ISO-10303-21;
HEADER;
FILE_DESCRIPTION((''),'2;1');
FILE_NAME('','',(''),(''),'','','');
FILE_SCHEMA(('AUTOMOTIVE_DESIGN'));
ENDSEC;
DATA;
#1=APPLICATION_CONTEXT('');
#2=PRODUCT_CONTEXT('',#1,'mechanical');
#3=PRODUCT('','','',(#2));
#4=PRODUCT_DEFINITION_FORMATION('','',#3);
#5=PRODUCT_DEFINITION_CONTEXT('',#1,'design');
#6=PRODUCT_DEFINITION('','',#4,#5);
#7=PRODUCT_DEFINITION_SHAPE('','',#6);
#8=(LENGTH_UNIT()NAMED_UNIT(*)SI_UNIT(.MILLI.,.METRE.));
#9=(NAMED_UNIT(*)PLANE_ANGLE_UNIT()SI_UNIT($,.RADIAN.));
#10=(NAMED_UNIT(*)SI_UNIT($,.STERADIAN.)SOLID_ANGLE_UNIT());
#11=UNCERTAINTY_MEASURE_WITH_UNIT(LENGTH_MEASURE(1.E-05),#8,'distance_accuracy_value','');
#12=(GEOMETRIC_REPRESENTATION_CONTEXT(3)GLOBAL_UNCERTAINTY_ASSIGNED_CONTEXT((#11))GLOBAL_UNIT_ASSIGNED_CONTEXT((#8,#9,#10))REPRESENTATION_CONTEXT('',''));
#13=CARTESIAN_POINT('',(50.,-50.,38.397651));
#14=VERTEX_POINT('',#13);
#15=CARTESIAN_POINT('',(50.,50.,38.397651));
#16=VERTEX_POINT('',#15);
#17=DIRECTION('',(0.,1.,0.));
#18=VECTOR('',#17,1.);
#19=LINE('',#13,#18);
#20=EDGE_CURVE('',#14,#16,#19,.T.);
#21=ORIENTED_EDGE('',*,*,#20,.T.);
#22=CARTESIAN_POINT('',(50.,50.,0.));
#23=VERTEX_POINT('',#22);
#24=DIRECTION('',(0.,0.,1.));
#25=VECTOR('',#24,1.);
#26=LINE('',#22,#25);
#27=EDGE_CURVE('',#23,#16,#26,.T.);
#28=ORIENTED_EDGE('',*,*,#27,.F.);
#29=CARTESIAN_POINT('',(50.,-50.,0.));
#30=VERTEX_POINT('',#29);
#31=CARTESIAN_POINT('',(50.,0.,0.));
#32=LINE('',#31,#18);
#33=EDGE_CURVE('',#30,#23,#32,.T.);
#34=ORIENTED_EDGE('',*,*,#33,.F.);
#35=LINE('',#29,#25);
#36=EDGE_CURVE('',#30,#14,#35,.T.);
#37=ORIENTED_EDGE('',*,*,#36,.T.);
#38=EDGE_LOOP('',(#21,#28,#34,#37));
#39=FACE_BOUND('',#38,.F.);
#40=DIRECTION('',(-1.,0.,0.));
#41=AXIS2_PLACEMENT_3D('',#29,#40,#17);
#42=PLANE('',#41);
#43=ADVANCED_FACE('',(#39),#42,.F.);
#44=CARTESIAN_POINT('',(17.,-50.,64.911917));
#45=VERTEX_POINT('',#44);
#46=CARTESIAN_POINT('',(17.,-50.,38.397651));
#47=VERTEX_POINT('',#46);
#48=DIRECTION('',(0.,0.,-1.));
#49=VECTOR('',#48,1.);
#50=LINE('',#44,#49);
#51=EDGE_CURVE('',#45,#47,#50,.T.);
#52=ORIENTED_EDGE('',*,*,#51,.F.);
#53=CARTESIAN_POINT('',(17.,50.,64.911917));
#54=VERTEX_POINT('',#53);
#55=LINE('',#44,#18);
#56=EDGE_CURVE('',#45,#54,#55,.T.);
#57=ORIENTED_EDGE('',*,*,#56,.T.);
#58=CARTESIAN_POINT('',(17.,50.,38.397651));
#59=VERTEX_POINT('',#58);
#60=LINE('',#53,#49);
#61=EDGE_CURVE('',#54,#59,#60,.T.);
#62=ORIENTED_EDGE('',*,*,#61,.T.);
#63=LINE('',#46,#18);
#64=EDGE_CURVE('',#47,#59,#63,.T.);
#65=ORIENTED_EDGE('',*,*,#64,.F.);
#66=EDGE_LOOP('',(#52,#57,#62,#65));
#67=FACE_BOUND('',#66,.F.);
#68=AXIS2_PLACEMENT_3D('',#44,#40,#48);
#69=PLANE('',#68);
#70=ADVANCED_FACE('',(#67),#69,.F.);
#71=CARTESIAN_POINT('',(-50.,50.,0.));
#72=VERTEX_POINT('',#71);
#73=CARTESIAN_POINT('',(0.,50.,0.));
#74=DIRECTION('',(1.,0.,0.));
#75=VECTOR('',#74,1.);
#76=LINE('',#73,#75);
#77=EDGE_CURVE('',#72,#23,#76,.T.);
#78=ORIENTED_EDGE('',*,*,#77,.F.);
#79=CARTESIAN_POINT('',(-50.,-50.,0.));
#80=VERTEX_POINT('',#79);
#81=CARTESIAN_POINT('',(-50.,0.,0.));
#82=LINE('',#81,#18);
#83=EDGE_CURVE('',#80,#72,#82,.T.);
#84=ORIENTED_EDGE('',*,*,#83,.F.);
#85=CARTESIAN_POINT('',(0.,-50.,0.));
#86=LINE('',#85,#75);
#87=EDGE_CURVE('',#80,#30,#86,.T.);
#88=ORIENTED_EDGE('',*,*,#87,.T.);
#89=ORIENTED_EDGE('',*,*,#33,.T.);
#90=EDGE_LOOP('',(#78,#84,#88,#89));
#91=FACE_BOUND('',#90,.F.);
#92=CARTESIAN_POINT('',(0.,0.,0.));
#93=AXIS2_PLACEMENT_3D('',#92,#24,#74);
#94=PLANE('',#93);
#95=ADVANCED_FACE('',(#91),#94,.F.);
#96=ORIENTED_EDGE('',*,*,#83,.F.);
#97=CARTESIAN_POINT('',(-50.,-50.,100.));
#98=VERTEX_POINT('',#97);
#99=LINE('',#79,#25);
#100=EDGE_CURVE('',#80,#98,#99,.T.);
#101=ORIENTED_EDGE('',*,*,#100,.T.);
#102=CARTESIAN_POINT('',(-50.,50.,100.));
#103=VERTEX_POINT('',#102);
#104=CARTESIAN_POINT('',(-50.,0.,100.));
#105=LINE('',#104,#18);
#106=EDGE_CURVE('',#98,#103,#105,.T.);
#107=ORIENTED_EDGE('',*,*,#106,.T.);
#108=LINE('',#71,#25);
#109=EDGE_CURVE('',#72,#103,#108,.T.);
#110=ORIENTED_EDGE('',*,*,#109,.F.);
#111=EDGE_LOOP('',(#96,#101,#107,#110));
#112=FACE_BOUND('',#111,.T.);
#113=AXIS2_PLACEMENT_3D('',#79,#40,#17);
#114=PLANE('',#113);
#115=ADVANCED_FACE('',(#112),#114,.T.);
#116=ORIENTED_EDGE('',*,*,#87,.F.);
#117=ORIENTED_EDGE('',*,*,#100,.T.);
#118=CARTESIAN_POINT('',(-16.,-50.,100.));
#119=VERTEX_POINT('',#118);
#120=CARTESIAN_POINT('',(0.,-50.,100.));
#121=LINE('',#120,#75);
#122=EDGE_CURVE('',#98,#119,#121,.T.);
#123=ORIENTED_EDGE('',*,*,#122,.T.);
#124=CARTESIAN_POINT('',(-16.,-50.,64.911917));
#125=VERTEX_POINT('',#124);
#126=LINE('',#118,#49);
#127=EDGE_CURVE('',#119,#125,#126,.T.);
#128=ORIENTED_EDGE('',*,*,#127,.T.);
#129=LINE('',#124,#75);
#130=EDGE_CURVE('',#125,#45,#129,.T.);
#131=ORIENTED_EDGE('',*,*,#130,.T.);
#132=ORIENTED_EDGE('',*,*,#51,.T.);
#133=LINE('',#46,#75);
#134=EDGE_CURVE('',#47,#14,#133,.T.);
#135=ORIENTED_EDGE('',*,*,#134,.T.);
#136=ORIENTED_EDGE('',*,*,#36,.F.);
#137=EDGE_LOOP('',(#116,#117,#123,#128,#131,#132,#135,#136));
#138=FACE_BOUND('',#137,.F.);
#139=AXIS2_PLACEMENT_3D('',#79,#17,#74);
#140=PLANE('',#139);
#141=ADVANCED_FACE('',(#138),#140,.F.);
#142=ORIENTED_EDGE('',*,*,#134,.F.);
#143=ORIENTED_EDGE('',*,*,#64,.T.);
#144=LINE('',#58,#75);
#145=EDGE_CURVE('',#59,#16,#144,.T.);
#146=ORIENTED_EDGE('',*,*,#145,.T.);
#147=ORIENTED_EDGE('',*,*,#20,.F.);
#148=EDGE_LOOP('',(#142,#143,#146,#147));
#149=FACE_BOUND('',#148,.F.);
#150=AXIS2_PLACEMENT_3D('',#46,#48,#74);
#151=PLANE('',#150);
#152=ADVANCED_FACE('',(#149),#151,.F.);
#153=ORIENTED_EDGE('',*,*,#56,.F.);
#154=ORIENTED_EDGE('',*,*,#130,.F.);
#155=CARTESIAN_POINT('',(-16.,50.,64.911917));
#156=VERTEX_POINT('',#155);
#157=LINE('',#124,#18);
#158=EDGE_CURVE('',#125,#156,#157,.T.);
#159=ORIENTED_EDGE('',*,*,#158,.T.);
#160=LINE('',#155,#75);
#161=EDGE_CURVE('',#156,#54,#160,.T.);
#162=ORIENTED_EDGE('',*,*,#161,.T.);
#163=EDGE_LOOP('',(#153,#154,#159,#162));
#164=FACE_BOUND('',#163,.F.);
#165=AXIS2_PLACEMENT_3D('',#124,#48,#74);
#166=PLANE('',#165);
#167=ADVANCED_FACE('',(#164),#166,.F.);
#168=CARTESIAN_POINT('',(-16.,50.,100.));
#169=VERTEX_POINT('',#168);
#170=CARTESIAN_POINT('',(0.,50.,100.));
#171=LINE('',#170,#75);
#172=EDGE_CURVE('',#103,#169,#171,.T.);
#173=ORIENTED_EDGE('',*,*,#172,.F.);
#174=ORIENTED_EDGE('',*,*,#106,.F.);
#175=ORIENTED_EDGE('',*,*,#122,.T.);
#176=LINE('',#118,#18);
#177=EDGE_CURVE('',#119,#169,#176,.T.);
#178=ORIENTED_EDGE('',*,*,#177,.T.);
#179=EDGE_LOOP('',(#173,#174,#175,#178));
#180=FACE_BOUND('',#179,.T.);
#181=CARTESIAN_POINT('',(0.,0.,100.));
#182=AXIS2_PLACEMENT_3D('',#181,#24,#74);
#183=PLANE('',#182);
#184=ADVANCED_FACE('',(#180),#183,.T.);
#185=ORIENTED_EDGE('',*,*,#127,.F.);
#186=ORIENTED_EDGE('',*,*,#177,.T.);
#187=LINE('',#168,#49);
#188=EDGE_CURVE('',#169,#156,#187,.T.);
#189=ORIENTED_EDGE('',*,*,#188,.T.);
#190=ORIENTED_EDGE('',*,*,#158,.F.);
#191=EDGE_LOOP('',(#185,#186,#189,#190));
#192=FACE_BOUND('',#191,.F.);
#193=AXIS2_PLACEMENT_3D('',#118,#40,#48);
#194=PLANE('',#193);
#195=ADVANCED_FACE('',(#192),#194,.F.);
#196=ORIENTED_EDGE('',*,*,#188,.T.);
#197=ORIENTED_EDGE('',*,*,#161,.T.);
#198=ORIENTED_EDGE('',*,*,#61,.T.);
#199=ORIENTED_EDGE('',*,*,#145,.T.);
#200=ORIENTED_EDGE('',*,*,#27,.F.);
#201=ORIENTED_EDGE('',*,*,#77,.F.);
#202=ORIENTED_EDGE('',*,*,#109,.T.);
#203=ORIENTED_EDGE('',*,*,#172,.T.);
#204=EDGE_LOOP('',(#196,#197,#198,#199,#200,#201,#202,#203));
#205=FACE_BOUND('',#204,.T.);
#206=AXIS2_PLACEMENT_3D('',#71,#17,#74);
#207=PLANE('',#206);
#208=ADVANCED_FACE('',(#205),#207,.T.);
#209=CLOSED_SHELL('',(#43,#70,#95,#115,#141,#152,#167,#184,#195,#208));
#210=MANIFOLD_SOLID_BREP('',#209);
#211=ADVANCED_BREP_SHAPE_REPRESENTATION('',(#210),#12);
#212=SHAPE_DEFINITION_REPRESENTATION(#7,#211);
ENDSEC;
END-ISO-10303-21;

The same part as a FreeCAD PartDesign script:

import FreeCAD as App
import Part
import Sketcher

doc = App.newDocument("Part")
body = doc.addObject("PartDesign::Body", "Body")

sketch1 = body.newObject("Sketcher::SketchObject", "Sketch")
sketch1.AttachmentSupport = (doc.getObject("XY_Plane"), [""])
sketch1.MapMode = "FlatFace"
sketch1.addGeometry(Part.LineSegment(App.Vector(-50, 50, 0), App.Vector(-50, -50, 0)), False)
sketch1.addGeometry(Part.LineSegment(App.Vector(-50, -50, 0), App.Vector(50, -50, 0)), False)
sketch1.addGeometry(Part.LineSegment(App.Vector(50, -50, 0), App.Vector(50, 50, 0)), False)
sketch1.addGeometry(Part.LineSegment(App.Vector(50, 50, 0), App.Vector(-50, 50, 0)), False)
sketch1.addConstraint(Sketcher.Constraint("Coincident", 0, 2, 1, 1))
sketch1.addConstraint(Sketcher.Constraint("Coincident", 1, 2, 2, 1))
sketch1.addConstraint(Sketcher.Constraint("Coincident", 2, 2, 3, 1))
sketch1.addConstraint(Sketcher.Constraint("Coincident", 3, 2, 0, 1))
sketch1.addConstraint(Sketcher.Constraint("Vertical", 0))
sketch1.addConstraint(Sketcher.Constraint("Horizontal", 1))
sketch1.addConstraint(Sketcher.Constraint("Vertical", 2))
sketch1.addConstraint(Sketcher.Constraint("Horizontal", 3))
sketch1.addConstraint(Sketcher.Constraint("Symmetric", 0, 2, 2, 2, -1, 1))
sketch1.addConstraint(Sketcher.Constraint("Equal", 3, 0))
sketch1.addConstraint(Sketcher.Constraint("DistanceX", 1, 1, 1, 2, 100.0))
pad1 = body.newObject("PartDesign::Pad", "Pad")
pad1.Profile = sketch1
pad1.Length = 100

sketch2 = body.newObject("Sketcher::SketchObject", "Sketch001")
sketch2.AttachmentSupport = (doc.getObject("XZ_Plane"), [""])
sketch2.MapMode = "FlatFace"
sketch2.AttachmentOffset = App.Placement(App.Vector(0, 0, 50), App.Rotation())
sketch2.addGeometry(Part.LineSegment(App.Vector(50, 100, 0), App.Vector(-16, 100, 0)), False)
sketch2.addGeometry(Part.LineSegment(App.Vector(-16, 100, 0), App.Vector(-16, 65, 0)), False)
sketch2.addGeometry(Part.LineSegment(App.Vector(-16, 65, 0), App.Vector(17, 65, 0)), False)
sketch2.addGeometry(Part.LineSegment(App.Vector(17, 65, 0), App.Vector(17, 38, 0)), False)
sketch2.addGeometry(Part.LineSegment(App.Vector(17, 38, 0), App.Vector(50, 38, 0)), False)
sketch2.addGeometry(Part.LineSegment(App.Vector(50, 38, 0), App.Vector(50, 100, 0)), False)
sketch2.addConstraint(Sketcher.Constraint("Coincident", 0, 2, 1, 1))
sketch2.addConstraint(Sketcher.Constraint("Coincident", 1, 2, 2, 1))
sketch2.addConstraint(Sketcher.Constraint("Coincident", 2, 2, 3, 1))
sketch2.addConstraint(Sketcher.Constraint("Coincident", 3, 2, 4, 1))
sketch2.addConstraint(Sketcher.Constraint("Coincident", 4, 2, 5, 1))
sketch2.addConstraint(Sketcher.Constraint("Coincident", 5, 2, 0, 1))
sketch2.addConstraint(Sketcher.Constraint("Horizontal", 0))
sketch2.addConstraint(Sketcher.Constraint("Vertical", 1))
sketch2.addConstraint(Sketcher.Constraint("Horizontal", 2))
sketch2.addConstraint(Sketcher.Constraint("Vertical", 3))
sketch2.addConstraint(Sketcher.Constraint("Horizontal", 4))
sketch2.addConstraint(Sketcher.Constraint("Vertical", 5))
sketch2.addConstraint(Sketcher.Constraint("Equal", 2, 4))
sketch2.addConstraint(Sketcher.Constraint("DistanceX", 0, 2, 0, 1, 66.0))
sketch2.addConstraint(Sketcher.Constraint("DistanceX", 0, 2, -1, 1, 16.0))
sketch2.addConstraint(Sketcher.Constraint("DistanceY", -1, 1, 0, 2, 100.0))
sketch2.addConstraint(Sketcher.Constraint("DistanceY", 5, 1, 5, 2, 61.602349))
sketch2.addConstraint(Sketcher.Constraint("DistanceY", 1, 2, 1, 1, 35.088083))
pocket1 = body.newObject("PartDesign::Pocket", "Pocket")
pocket1.Profile = sketch2
pocket1.Length = 100

doc.recompute()
